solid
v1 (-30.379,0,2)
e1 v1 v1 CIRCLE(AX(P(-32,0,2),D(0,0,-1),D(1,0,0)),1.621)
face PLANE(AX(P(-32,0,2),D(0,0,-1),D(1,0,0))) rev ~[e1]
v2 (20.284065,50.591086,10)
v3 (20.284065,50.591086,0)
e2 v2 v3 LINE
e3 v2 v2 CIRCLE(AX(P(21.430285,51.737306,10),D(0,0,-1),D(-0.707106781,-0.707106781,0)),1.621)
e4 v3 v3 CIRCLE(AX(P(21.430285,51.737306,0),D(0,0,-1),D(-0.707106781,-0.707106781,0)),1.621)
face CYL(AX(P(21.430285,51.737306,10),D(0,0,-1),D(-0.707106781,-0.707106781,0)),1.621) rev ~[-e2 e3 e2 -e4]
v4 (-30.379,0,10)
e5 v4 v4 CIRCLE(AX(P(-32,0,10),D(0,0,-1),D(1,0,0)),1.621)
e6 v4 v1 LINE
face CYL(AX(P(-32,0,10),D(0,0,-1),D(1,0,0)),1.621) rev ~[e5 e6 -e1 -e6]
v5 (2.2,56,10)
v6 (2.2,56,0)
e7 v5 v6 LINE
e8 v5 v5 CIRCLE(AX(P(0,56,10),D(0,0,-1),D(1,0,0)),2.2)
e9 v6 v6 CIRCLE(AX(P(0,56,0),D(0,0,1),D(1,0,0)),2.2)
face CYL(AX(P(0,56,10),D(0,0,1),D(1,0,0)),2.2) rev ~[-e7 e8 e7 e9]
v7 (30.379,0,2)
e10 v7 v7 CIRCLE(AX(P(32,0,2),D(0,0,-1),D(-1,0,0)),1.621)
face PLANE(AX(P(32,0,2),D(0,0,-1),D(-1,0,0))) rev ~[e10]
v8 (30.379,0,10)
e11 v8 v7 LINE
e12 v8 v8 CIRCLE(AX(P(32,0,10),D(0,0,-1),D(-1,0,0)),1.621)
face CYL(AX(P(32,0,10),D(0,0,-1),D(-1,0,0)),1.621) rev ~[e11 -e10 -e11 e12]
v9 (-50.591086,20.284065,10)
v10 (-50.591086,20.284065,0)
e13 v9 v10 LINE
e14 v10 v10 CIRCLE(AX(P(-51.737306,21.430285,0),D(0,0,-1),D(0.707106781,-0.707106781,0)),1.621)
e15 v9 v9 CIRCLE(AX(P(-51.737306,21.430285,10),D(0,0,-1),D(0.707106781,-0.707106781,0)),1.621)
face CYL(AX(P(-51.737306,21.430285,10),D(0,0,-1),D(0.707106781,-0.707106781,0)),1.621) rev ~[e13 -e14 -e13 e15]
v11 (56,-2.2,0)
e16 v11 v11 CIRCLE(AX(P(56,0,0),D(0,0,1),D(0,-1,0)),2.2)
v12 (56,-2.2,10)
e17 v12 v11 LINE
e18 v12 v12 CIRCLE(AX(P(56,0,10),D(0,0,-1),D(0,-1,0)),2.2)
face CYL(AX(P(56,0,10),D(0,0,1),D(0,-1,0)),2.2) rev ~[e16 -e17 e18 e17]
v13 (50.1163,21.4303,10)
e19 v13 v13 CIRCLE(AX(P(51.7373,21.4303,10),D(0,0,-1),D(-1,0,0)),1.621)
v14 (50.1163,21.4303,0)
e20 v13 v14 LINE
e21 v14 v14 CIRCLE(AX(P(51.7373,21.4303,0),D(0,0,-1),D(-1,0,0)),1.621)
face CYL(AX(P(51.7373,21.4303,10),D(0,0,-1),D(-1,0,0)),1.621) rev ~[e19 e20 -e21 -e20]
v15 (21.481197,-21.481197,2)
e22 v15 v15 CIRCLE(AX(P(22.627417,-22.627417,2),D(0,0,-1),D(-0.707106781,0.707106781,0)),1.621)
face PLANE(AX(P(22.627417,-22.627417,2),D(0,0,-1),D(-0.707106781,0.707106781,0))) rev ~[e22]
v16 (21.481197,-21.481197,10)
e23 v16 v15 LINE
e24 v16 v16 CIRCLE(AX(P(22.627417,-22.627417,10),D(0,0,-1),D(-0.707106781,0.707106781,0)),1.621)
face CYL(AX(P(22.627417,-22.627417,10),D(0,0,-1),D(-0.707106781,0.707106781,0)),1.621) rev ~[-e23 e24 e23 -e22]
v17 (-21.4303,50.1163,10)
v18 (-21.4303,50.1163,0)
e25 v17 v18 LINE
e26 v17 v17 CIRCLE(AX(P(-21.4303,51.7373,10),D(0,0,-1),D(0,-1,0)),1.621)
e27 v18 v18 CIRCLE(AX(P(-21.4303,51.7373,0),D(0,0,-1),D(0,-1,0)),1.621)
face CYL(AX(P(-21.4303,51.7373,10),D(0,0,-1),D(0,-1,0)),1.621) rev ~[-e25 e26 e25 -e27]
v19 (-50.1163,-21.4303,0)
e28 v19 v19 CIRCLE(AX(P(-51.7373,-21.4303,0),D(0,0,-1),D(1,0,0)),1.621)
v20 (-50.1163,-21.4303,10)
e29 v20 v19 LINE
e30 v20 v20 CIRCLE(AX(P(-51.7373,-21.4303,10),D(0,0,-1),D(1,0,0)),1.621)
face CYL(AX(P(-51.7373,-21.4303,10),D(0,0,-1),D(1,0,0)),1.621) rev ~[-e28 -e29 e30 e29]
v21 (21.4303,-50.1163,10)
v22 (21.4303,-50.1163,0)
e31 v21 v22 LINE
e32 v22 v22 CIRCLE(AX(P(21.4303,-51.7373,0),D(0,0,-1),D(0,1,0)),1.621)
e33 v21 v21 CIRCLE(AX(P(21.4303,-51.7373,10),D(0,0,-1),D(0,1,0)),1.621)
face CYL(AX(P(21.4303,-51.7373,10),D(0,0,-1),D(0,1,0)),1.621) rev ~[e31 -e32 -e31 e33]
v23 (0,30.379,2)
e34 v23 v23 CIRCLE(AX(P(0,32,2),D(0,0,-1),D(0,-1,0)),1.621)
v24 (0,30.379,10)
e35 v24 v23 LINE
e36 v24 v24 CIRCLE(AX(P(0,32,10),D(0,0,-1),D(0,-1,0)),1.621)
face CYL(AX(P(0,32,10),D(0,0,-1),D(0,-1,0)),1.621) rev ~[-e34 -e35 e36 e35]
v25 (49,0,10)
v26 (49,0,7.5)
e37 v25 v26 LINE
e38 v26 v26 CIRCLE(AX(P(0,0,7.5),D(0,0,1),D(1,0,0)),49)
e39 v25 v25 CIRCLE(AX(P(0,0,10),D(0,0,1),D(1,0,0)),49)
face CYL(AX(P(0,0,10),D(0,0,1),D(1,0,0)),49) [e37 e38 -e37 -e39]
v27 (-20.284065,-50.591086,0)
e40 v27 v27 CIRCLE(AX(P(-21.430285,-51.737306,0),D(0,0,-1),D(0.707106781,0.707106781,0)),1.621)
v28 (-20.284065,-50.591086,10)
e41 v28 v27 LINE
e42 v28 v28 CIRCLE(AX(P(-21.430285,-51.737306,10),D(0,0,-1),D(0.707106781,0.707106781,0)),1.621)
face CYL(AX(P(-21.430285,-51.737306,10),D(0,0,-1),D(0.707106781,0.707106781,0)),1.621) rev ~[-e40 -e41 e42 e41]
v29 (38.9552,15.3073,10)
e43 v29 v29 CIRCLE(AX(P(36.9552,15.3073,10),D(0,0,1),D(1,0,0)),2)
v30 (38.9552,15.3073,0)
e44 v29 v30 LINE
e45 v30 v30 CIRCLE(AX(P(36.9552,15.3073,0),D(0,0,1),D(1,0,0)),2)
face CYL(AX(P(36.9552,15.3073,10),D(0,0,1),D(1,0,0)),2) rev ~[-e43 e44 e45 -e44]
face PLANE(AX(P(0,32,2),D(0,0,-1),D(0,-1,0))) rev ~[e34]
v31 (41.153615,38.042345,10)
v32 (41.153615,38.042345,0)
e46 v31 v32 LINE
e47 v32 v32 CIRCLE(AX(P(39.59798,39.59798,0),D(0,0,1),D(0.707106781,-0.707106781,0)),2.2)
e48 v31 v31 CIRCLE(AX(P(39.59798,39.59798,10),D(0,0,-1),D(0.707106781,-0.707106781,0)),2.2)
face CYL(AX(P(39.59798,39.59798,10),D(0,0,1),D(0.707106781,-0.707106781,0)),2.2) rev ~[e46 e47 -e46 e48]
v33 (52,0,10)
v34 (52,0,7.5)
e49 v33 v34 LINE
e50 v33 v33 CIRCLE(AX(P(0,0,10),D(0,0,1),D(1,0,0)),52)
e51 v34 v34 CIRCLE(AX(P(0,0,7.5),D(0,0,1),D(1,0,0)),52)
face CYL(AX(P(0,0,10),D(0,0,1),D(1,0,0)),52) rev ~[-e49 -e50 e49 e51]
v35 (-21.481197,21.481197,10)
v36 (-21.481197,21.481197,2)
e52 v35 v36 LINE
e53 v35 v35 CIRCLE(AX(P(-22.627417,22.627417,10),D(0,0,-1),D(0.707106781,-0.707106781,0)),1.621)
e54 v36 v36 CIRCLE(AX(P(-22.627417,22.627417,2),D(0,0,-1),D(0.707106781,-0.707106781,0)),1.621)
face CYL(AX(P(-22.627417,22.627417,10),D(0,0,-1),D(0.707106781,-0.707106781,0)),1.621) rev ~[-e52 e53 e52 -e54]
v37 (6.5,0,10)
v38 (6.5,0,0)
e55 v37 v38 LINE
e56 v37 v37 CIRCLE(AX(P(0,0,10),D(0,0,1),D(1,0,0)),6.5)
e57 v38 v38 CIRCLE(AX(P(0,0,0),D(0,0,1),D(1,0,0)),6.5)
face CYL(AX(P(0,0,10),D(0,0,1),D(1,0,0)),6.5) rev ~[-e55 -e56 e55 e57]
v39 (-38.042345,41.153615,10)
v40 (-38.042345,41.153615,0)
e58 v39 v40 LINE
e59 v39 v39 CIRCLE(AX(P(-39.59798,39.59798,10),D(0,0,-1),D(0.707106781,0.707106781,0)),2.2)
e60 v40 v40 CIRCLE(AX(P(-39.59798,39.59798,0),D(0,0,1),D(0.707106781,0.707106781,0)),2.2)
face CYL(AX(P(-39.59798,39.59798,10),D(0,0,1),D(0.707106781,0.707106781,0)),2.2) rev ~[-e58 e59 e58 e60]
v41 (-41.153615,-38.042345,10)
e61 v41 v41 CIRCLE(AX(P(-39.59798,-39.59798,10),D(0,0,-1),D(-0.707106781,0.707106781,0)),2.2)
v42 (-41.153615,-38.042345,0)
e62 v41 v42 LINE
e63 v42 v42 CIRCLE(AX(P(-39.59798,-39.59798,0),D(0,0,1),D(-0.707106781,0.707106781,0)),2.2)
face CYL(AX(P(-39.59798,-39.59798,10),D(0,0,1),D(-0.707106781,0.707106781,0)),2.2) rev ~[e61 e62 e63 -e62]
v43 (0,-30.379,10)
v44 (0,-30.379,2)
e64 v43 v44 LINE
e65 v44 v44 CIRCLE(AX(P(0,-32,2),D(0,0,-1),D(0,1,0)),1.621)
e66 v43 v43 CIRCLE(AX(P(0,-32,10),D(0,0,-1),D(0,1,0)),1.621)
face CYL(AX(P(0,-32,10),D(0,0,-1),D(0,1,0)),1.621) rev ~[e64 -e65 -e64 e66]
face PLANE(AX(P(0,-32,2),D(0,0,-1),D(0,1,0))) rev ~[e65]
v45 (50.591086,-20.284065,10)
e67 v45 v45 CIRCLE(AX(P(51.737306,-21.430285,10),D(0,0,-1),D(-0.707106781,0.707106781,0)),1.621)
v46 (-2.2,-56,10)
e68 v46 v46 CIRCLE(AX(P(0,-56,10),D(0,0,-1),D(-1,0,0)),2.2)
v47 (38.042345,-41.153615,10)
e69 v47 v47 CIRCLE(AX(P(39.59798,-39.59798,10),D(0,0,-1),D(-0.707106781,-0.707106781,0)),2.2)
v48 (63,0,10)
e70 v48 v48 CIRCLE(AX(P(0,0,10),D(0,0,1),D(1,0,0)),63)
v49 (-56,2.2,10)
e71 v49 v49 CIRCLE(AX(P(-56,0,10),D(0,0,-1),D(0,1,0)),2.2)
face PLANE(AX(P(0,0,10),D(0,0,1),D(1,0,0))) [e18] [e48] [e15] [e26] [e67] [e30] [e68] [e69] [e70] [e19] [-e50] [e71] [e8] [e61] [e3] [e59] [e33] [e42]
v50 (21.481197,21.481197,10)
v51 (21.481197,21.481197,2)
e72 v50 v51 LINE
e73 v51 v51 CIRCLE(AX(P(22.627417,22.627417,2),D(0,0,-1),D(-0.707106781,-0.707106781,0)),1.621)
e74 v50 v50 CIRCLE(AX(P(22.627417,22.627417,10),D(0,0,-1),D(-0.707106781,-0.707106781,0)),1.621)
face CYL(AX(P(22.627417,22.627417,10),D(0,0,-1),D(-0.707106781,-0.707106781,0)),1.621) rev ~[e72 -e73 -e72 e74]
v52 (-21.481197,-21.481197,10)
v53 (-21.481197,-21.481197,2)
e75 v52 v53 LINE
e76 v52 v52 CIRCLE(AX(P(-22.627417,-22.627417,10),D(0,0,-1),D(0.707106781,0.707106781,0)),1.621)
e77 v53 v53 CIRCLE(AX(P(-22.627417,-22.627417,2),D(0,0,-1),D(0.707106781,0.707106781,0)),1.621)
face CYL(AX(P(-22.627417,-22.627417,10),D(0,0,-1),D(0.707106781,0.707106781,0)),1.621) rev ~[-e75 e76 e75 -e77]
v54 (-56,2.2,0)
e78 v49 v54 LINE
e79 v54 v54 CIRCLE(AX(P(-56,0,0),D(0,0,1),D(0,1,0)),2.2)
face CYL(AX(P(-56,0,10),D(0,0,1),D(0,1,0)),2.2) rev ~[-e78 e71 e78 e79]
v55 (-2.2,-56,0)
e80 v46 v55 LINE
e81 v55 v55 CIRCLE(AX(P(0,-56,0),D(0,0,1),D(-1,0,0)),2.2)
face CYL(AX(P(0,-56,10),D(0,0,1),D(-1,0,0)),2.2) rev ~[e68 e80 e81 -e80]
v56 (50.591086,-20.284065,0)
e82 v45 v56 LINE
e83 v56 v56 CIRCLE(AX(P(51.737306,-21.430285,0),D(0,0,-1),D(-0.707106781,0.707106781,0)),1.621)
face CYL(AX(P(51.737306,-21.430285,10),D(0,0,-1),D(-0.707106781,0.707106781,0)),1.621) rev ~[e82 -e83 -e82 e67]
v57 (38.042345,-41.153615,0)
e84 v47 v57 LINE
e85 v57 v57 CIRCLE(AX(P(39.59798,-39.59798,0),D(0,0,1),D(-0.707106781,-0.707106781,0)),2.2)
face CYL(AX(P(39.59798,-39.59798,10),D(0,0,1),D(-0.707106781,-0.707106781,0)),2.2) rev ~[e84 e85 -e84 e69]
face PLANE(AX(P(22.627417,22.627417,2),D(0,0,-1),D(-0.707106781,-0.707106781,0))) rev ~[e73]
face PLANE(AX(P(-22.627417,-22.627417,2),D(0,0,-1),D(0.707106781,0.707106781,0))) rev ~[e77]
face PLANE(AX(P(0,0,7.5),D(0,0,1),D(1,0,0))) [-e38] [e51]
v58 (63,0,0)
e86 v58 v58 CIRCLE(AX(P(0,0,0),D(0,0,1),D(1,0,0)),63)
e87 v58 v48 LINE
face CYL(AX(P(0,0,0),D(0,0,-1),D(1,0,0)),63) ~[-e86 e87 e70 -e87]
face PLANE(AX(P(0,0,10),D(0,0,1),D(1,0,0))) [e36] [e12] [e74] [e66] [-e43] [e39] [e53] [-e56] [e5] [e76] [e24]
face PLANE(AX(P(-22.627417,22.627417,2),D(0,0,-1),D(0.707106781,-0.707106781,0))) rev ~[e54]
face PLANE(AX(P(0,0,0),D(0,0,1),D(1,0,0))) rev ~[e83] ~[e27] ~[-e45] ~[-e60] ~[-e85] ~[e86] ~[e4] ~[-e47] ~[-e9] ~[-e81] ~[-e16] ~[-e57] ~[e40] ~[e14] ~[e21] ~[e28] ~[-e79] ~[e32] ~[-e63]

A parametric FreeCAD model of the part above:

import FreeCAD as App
import Part
import Sketcher

V = App.Vector
Q = App.Units.Quantity

doc = App.newDocument("Part")
params = doc.addObject("Spreadsheet::Sheet", "Params")
for row, (alias, value) in enumerate([
    ("sketch1_diameter", "126 mm"),
    ("pad1_length", "10 mm"),
    ("sketch2_diameter", "98 mm"),
    ("sketch2_diameter2", "104 mm"),
    ("pocket1_length", "2.5 mm"),
    ("sketch3_diameter", "4.4 mm"),
    ("pocket2_length", "10 mm"),
    ("hole_diameter", "3.242 mm"),
    ("hole_depth", "8 mm"),
    ("sketch5_diameter", "4 mm"),
    ("sketch6_diameter", "13 mm"),
    ("hole2_diameter", "3.242 mm"),
], start=1):
    params.set(f"A{row}", alias)
    params.set(f"B{row}", "=" + value)
    params.setAlias(f"B{row}", alias)

body = doc.addObject("PartDesign::Body", "Body")

# Sketch on XY plane
sketch1 = body.newObject("Sketcher::SketchObject", "Sketch")
sketch1.AttachmentSupport = (doc.getObject("XY_Plane"), [""])
sketch1.MapMode = "FlatFace"
sketch1.addGeometry(Part.Circle(V(0, 0, 0), V(0, 0, 1), 63), False)
sketch1.addConstraint([
    Sketcher.Constraint("Coincident", 0, 3, -1, 1),
    Sketcher.Constraint("Diameter", 0, Q("126 mm")),
])
sketch1.setExpression("Constraints[1]", "Params.sketch1_diameter")
pad1 = body.newObject("PartDesign::Pad", "Pad")
pad1.Profile = sketch1
pad1.setExpression("Length", "Params.pad1_length")

# Sketch on XY plane
sketch2 = body.newObject("Sketcher::SketchObject", "Sketch001")
sketch2.AttachmentSupport = (doc.getObject("XY_Plane"), [""])
sketch2.MapMode = "FlatFace"
sketch2.AttachmentOffset = App.Placement(V(0, 0, 10), App.Rotation())
sketch2.addGeometry([
    Part.Circle(V(0, 0, 0), V(0, 0, 1), 52),
    Part.Circle(V(0, 0, 0), V(0, 0, 1), 49),
], False)
sketch2.addConstraint([
    Sketcher.Constraint("Coincident", 0, 3, -1, 1),
    Sketcher.Constraint("Coincident", 1, 3, -1, 1),
    Sketcher.Constraint("Diameter", 1, Q("98 mm")),
    Sketcher.Constraint("Diameter", 0, Q("104 mm")),
])
sketch2.setExpression("Constraints[2]", "Params.sketch2_diameter")
sketch2.setExpression("Constraints[3]", "Params.sketch2_diameter2")
pocket1 = body.newObject("PartDesign::Pocket", "Pocket")
pocket1.Profile = sketch2
pocket1.setExpression("Length", "Params.pocket1_length")

# Sketch on XY plane
sketch3 = body.newObject("Sketcher::SketchObject", "Sketch002")
sketch3.AttachmentSupport = (doc.getObject("XY_Plane"), [""])
sketch3.MapMode = "FlatFace"
sketch3.AttachmentOffset = App.Placement(V(0, 0, 10), App.Rotation())
sketch3.addGeometry(Part.Circle(V(0, 56, 0), V(0, 0, 1), 2.2), False)
sketch3.addConstraint([
    Sketcher.Constraint("PointOnObject", 0, 3, -2),
    Sketcher.Constraint("Diameter", 0, Q("4.4 mm")),
    Sketcher.Constraint("DistanceY", -1, 1, 0, 3, Q("56 mm")),
])
sketch3.setExpression("Constraints[1]", "Params.sketch3_diameter")
pocket2 = body.newObject("PartDesign::Pocket", "Pocket001")
pocket2.Profile = sketch3
pocket2.setExpression("Length", "Params.pocket2_length")
doc.recompute()

polarpattern = body.newObject("PartDesign::PolarPattern", "PolarPattern")
polarpattern.Originals = [pocket2]
polarpattern.Axis = (doc.getObject("Z_Axis"), [""])
polarpattern.Angle = 360
polarpattern.Occurrences = 8
body.Tip = polarpattern

# Sketch on XY plane
sketch4 = body.newObject("Sketcher::SketchObject", "Sketch003")
sketch4.AttachmentSupport = (doc.getObject("XY_Plane"), [""])
sketch4.MapMode = "FlatFace"
sketch4.AttachmentOffset = App.Placement(V(0, 0, 10), App.Rotation())
sketch4.addGeometry(Part.Circle(V(0, 32, 0), V(0, 0, 1), 1.621), False)
sketch4.addConstraint([
    Sketcher.Constraint("PointOnObject", 0, 3, -2),
    Sketcher.Constraint("Diameter", 0, Q("3.242 mm")),
    Sketcher.Constraint("DistanceY", -1, 1, 0, 3, Q("32 mm")),
])
doc.recompute()
hole = body.newObject("PartDesign::Hole", "Hole")
hole.Profile = sketch4
hole.ThreadType = "None"
hole.setExpression("Diameter", "Params.hole_diameter")
hole.DepthType = "Dimension"
hole.setExpression("Depth", "Params.hole_depth")
hole.DrillPoint = "Flat"
doc.recompute()

polarpattern2 = body.newObject("PartDesign::PolarPattern", "PolarPattern001")
polarpattern2.Originals = [hole]
polarpattern2.Axis = (doc.getObject("Z_Axis"), [""])
polarpattern2.Angle = 360
polarpattern2.Occurrences = 8
body.Tip = polarpattern2

# Sketch on XY plane
sketch5 = body.newObject("Sketcher::SketchObject", "Sketch004")
sketch5.AttachmentSupport = (doc.getObject("XY_Plane"), [""])
sketch5.MapMode = "FlatFace"
sketch5.AttachmentOffset = App.Placement(V(0, 0, 10), App.Rotation())
sketch5.addGeometry(Part.Circle(V(36.9552, 15.3073, 0), V(0, 0, 1), 2), False)
sketch5.addConstraint([
    Sketcher.Constraint("Diameter", 0, Q("4 mm")),
    Sketcher.Constraint("DistanceX", -1, 1, 0, 3, Q("36.9552 mm")),
    Sketcher.Constraint("DistanceY", -1, 1, 0, 3, Q("15.3073 mm")),
])
sketch5.setExpression("Constraints[0]", "Params.sketch5_diameter")
pocket3 = body.newObject("PartDesign::Pocket", "Pocket002")
pocket3.Profile = sketch5
pocket3.Type = "ThroughAll"

# Sketch on XY plane
sketch6 = body.newObject("Sketcher::SketchObject", "Sketch005")
sketch6.AttachmentSupport = (doc.getObject("XY_Plane"), [""])
sketch6.MapMode = "FlatFace"
sketch6.AttachmentOffset = App.Placement(V(0, 0, 10), App.Rotation())
sketch6.addGeometry(Part.Circle(V(0, 0, 0), V(0, 0, 1), 6.5), False)
sketch6.addConstraint([
    Sketcher.Constraint("Coincident", 0, 3, -1, 1),
    Sketcher.Constraint("Diameter", 0, Q("13 mm")),
])
sketch6.setExpression("Constraints[1]", "Params.sketch6_diameter")
pocket4 = body.newObject("PartDesign::Pocket", "Pocket003")
pocket4.Profile = sketch6
pocket4.Type = "ThroughAll"

# Sketch on XY plane
sketch7 = body.newObject("Sketcher::SketchObject", "Sketch006")
sketch7.AttachmentSupport = (doc.getObject("XY_Plane"), [""])
sketch7.MapMode = "FlatFace"
sketch7.AttachmentOffset = App.Placement(V(0, 0, 10), App.Rotation())
sketch7.addGeometry(Part.Circle(V(-21.4303, 51.7373, 0), V(0, 0, 1), 1.621), False)
sketch7.addConstraint([
    Sketcher.Constraint("Diameter", 0, Q("3.242 mm")),
    Sketcher.Constraint("DistanceX", 0, 3, -1, 1, Q("21.4303 mm")),
    Sketcher.Constraint("DistanceY", -1, 1, 0, 3, Q("51.7373 mm")),
])
doc.recompute()
hole2 = body.newObject("PartDesign::Hole", "Hole001")
hole2.Profile = sketch7
hole2.ThreadType = "None"
hole2.setExpression("Diameter", "Params.hole2_diameter")
hole2.DepthType = "ThroughAll"
doc.recompute()

polarpattern3 = body.newObject("PartDesign::PolarPattern", "PolarPattern002")
polarpattern3.Originals = [hole2]
polarpattern3.Axis = (doc.getObject("Z_Axis"), [""])
polarpattern3.Angle = 360
polarpattern3.Occurrences = 8
body.Tip = polarpattern3

doc.recompute()
